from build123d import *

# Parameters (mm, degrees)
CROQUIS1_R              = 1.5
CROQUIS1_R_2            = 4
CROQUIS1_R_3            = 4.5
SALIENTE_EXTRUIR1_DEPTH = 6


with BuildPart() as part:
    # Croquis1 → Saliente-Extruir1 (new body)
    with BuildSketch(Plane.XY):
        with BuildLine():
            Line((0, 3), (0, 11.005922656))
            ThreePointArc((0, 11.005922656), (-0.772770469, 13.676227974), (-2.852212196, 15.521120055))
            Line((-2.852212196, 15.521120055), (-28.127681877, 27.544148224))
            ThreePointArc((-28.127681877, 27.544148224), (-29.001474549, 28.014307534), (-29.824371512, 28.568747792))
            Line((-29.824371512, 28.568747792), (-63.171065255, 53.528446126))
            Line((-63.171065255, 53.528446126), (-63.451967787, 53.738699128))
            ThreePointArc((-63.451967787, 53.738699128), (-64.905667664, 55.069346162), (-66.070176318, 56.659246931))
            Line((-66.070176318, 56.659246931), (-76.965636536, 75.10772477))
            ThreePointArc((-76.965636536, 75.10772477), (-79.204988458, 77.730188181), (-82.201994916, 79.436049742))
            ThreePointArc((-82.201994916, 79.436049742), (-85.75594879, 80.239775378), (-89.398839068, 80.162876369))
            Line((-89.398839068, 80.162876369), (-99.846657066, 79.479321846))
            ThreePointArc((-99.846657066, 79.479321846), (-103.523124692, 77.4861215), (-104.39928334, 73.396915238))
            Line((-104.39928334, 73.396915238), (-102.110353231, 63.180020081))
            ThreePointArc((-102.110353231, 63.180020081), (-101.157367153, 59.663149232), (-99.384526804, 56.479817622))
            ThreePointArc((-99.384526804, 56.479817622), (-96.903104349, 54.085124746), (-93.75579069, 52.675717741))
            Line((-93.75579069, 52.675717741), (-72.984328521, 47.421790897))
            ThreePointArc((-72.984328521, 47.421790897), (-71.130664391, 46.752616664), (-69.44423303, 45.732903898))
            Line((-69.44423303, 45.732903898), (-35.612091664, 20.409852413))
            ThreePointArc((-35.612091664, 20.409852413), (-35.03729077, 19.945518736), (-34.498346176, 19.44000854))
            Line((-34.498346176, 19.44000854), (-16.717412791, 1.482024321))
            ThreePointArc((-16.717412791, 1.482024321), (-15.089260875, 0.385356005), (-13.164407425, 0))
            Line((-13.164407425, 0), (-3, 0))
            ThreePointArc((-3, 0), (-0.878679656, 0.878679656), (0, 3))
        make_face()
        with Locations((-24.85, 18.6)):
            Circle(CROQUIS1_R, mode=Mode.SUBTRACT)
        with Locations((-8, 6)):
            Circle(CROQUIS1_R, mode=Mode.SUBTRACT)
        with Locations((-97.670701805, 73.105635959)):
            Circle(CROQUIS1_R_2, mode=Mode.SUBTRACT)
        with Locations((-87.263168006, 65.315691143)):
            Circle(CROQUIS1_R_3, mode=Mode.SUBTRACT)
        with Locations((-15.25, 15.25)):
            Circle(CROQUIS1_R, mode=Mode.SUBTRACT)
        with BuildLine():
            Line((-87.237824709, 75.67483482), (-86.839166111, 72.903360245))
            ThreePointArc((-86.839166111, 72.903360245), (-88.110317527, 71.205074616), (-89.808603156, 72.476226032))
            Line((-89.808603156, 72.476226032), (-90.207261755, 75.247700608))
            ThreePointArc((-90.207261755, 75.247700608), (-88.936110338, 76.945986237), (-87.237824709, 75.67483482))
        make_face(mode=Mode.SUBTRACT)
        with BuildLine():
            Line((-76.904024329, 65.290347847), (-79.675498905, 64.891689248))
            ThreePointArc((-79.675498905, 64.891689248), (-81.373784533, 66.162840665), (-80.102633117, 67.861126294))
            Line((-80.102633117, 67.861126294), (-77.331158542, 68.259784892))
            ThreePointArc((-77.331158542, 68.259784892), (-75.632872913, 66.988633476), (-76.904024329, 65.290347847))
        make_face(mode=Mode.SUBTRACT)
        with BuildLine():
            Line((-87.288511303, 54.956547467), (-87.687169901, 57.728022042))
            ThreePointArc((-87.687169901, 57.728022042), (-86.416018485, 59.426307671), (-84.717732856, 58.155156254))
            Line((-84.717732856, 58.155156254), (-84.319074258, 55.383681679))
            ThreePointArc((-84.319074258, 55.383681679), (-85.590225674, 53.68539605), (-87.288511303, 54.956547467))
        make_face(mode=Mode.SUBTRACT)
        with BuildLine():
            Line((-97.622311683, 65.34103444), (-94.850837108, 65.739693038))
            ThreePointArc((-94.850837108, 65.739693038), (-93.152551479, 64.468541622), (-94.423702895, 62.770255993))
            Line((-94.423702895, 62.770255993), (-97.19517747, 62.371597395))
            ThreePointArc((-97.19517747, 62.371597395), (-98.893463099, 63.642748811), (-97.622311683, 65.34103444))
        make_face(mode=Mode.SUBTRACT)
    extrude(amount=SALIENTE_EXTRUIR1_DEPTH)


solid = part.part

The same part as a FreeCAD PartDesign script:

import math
import FreeCAD as App
import Part
import Sketcher
from FreeCAD import Vector
Q = App.Units.Quantity

doc = App.newDocument("Part")
body = doc.addObject("PartDesign::Body", "Body")

# Sketch on XY plane
sketch1 = doc.addObject("Sketcher::SketchObject", "Sketch")
body.addObject(sketch1)
sketch1.AttachmentSupport = (doc.XY_Plane, [""])
sketch1.MapMode = "FlatFace"
sketch1.addGeometry(Part.LineSegment(Vector(0, 3, 0), Vector(0, 11.01, 0)), False)
sketch1.addGeometry(Part.ArcOfCircle(Part.Circle(Vector(-5, 11.01, 0), Vector(0, 0, 1), 5), math.radians(0), math.radians(65)), False)
sketch1.addGeometry(Part.LineSegment(Vector(-2.85, 15.52, 0), Vector(-28.13, 27.54, 0)), False)
sketch1.addGeometry(Part.ArcOfCircle(Part.Circle(Vector(-23.83, 36.57, 0), Vector(0, 0, 1), 10), math.radians(-126.81), math.radians(-115.44)), False)
sketch1.addGeometry(Part.LineSegment(Vector(-29.82, 28.57, 0), Vector(-63.17, 53.53, 0)), False)
sketch1.addGeometry(Part.LineSegment(Vector(-63.17, 53.53, 0), Vector(-63.45, 53.74, 0)), False)
sketch1.addGeometry(Part.ArcOfCircle(Part.Circle(Vector(-57.46, 61.74, 0), Vector(0, 0, 1), 10), math.radians(-149), math.radians(-127)), False)
sketch1.addGeometry(Part.LineSegment(Vector(-66.07, 56.66, 0), Vector(-76.97, 75.11, 0)), False)
sketch1.addGeometry(Part.ArcOfCircle(Part.Circle(Vector(-85.58, 70.02, 0), Vector(0, 0, 1), 10), math.radians(31), math.radians(70)), False)
sketch1.addGeometry(Part.ArcOfCircle(Part.Circle(Vector(-87.26, 65.32, 0), Vector(0, 0, 1), 15), math.radians(70), math.radians(98)), False)
sketch1.addGeometry(Part.LineSegment(Vector(-89.4, 80.16, 0), Vector(-99.85, 79.48, 0)), False)
sketch1.addGeometry(Part.ArcOfCircle(Part.Circle(Vector(-99.52, 74.49, 0), Vector(0, 0, 1), 5), math.radians(94), math.radians(193)), False)
sketch1.addGeometry(Part.LineSegment(Vector(-104.4, 73.4, 0), Vector(-102.11, 63.18, 0)), False)
sketch1.addGeometry(Part.ArcOfCircle(Part.Circle(Vector(-87.26, 65.32, 0), Vector(0, 0, 1), 15), math.radians(-172), math.radians(-144)), False)
sketch1.addGeometry(Part.ArcOfCircle(Part.Circle(Vector(-91.3, 62.37, 0), Vector(0, 0, 1), 10), math.radians(-144), math.radians(-104)), False)
sketch1.addGeometry(Part.LineSegment(Vector(-93.76, 52.68, 0), Vector(-72.98, 47.42, 0)), False)
sketch1.addGeometry(Part.ArcOfCircle(Part.Circle(Vector(-75.44, 37.73, 0), Vector(0, 0, 1), 10), math.radians(53), math.radians(76)), False)
sketch1.addGeometry(Part.LineSegment(Vector(-69.44, 45.73, 0), Vector(-35.61, 20.41, 0)), False)
sketch1.addGeometry(Part.ArcOfCircle(Part.Circle(Vector(-41.6, 12.4, 0), Vector(0, 0, 1), 10), math.radians(44.72), math.radians(53.19)), False)
sketch1.addGeometry(Part.LineSegment(Vector(-34.5, 19.44, 0), Vector(-16.72, 1.48, 0)), False)
sketch1.addGeometry(Part.ArcOfCircle(Part.Circle(Vector(-13.16, 5, 0), Vector(0, 0, 1), 5), math.radians(-135), math.radians(-90)), False)
sketch1.addGeometry(Part.LineSegment(Vector(-13.16, 0, 0), Vector(-3, 0, 0)), False)
sketch1.addGeometry(Part.ArcOfCircle(Part.Circle(Vector(-3, 3, 0), Vector(0, 0, 1), 3), math.radians(-90), math.radians(0)), False)
sketch1.addGeometry(Part.Circle(Vector(-8, 6, 0), Vector(0, 0, 1), 1.5), False)
sketch1.addGeometry(Part.Circle(Vector(-24.85, 18.6, 0), Vector(0, 0, 1), 1.5), False)
sketch1.addGeometry(Part.Circle(Vector(-15.25, 15.25, 0), Vector(0, 0, 1), 1.5), False)
sketch1.addGeometry(Part.ArcOfCircle(Part.Circle(Vector(-85.8, 55.17, 0), Vector(0, 0, 1), 1.5), math.radians(-172), math.radians(8)), False)
sketch1.addGeometry(Part.LineSegment(Vector(-87.29, 54.96, 0), Vector(-87.69, 57.73, 0)), False)
sketch1.addGeometry(Part.ArcOfCircle(Part.Circle(Vector(-86.2, 57.94, 0), Vector(0, 0, 1), 1.5), math.radians(8), math.radians(188)), False)
sketch1.addGeometry(Part.LineSegment(Vector(-84.72, 58.16, 0), Vector(-84.32, 55.38, 0)), False)
sketch1.addGeometry(Part.ArcOfCircle(Part.Circle(Vector(-97.41, 63.86, 0), Vector(0, 0, 1), 1.5), math.radians(98), math.radians(278)), False)
sketch1.addGeometry(Part.LineSegment(Vector(-97.62, 65.34, 0), Vector(-94.85, 65.74, 0)), False)
sketch1.addGeometry(Part.ArcOfCircle(Part.Circle(Vector(-94.64, 64.25, 0), Vector(0, 0, 1), 1.5), math.radians(-82), math.radians(98)), False)
sketch1.addGeometry(Part.LineSegment(Vector(-94.42, 62.77, 0), Vector(-97.2, 62.37, 0)), False)
sketch1.addGeometry(Part.Circle(Vector(-87.26, 65.32, 0), Vector(0, 0, 1), 4.5), False)
sketch1.addGeometry(Part.ArcOfCircle(Part.Circle(Vector(-77.12, 66.78, 0), Vector(0, 0, 1), 1.5), math.radians(-82), math.radians(98)), False)
sketch1.addGeometry(Part.LineSegment(Vector(-76.9, 65.29, 0), Vector(-79.68, 64.89, 0)), False)
sketch1.addGeometry(Part.ArcOfCircle(Part.Circle(Vector(-79.89, 66.38, 0), Vector(0, 0, 1), 1.5), math.radians(98), math.radians(278)), False)
sketch1.addGeometry(Part.LineSegment(Vector(-80.1, 67.86, 0), Vector(-77.33, 68.26, 0)), False)
sketch1.addGeometry(Part.Circle(Vector(-97.67, 73.11, 0), Vector(0, 0, 1), 4), False)
sketch1.addGeometry(Part.ArcOfCircle(Part.Circle(Vector(-88.72, 75.46, 0), Vector(0, 0, 1), 1.5), math.radians(8), math.radians(188)), False)
sketch1.addGeometry(Part.LineSegment(Vector(-87.24, 75.67, 0), Vector(-86.84, 72.9, 0)), False)
sketch1.addGeometry(Part.ArcOfCircle(Part.Circle(Vector(-88.32, 72.69, 0), Vector(0, 0, 1), 1.5), math.radians(-172), math.radians(8)), False)
sketch1.addGeometry(Part.LineSegment(Vector(-89.81, 72.48, 0), Vector(-90.21, 75.25, 0)), False)
sketch1.addConstraint(Sketcher.Constraint("Tangent", 0, 2, 1, 1))
sketch1.addConstraint(Sketcher.Constraint("Tangent", 1, 2, 2, 1))
sketch1.addConstraint(Sketcher.Constraint("Tangent", 2, 2, 3, 2))
sketch1.addConstraint(Sketcher.Constraint("Tangent", 3, 1, 4, 1))
sketch1.addConstraint(Sketcher.Constraint("Coincident", 4, 2, 5, 1))
sketch1.addConstraint(Sketcher.Constraint("Tangent", 5, 2, 6, 2))
sketch1.addConstraint(Sketcher.Constraint("Tangent", 6, 1, 7, 1))
sketch1.addConstraint(Sketcher.Constraint("Tangent", 7, 2, 8, 1))
sketch1.addConstraint(Sketcher.Constraint("Tangent", 8, 2, 9, 1))
sketch1.addConstraint(Sketcher.Constraint("Coincident", 9, 2, 10, 1))
sketch1.addConstraint(Sketcher.Constraint("Tangent", 10, 2, 11, 1))
sketch1.addConstraint(Sketcher.Constraint("Tangent", 11, 2, 12, 1))
sketch1.addConstraint(Sketcher.Constraint("Coincident", 12, 2, 13, 1))
sketch1.addConstraint(Sketcher.Constraint("Tangent", 13, 2, 14, 1))
sketch1.addConstraint(Sketcher.Constraint("Tangent", 14, 2, 15, 1))
sketch1.addConstraint(Sketcher.Constraint("Tangent", 15, 2, 16, 2))
sketch1.addConstraint(Sketcher.Constraint("Tangent", 16, 1, 17, 1))
sketch1.addConstraint(Sketcher.Constraint("Tangent", 17, 2, 18, 2))
sketch1.addConstraint(Sketcher.Constraint("Tangent", 18, 1, 19, 1))
sketch1.addConstraint(Sketcher.Constraint("Tangent", 19, 2, 20, 1))
sketch1.addConstraint(Sketcher.Constraint("Tangent", 20, 2, 21, 1))
sketch1.addConstraint(Sketcher.Constraint("Tangent", 21, 2, 22, 1))
sketch1.addConstraint(Sketcher.Constraint("Tangent", 22, 2, 0, 1))
sketch1.addConstraint(Sketcher.Constraint("Tangent", 26, 1, 27, 1))
sketch1.addConstraint(Sketcher.Constraint("Tangent", 27, 2, 28, 2))
sketch1.addConstraint(Sketcher.Constraint("Tangent", 28, 1, 29, 1))
sketch1.addConstraint(Sketcher.Constraint("Tangent", 29, 2, 26, 2))
sketch1.addConstraint(Sketcher.Constraint("Tangent", 30, 1, 31, 1))
sketch1.addConstraint(Sketcher.Constraint("Tangent", 31, 2, 32, 2))
sketch1.addConstraint(Sketcher.Constraint("Tangent", 32, 1, 33, 1))
sketch1.addConstraint(Sketcher.Constraint("Tangent", 33, 2, 30, 2))
sketch1.addConstraint(Sketcher.Constraint("Tangent", 35, 1, 36, 1))
sketch1.addConstraint(Sketcher.Constraint("Tangent", 36, 2, 37, 2))
sketch1.addConstraint(Sketcher.Constraint("Tangent", 37, 1, 38, 1))
sketch1.addConstraint(Sketcher.Constraint("Tangent", 38, 2, 35, 2))
sketch1.addConstraint(Sketcher.Constraint("Tangent", 40, 1, 41, 1))
sketch1.addConstraint(Sketcher.Constraint("Tangent", 41, 2, 42, 2))
sketch1.addConstraint(Sketcher.Constraint("Tangent", 42, 1, 43, 1))
sketch1.addConstraint(Sketcher.Constraint("Tangent", 43, 2, 40, 2))
sketch1.addConstraint(Sketcher.Constraint("Vertical", 0))
sketch1.addConstraint(Sketcher.Constraint("Horizontal", 21))
sketch1.addConstraint(Sketcher.Constraint("Coincident", 13, 3, 9, 3))
sketch1.addConstraint(Sketcher.Constraint("Coincident", 34, 3, 9, 3))
sketch1.addConstraint(Sketcher.Constraint("Equal", 3, 6))
sketch1.addConstraint(Sketcher.Constraint("Equal", 6, 8))
sketch1.addConstraint(Sketcher.Constraint("Equal", 1, 11))
sketch1.addConstraint(Sketcher.Constraint("Equal", 9, 13))
sketch1.addConstraint(Sketcher.Constraint("Equal", 8, 14))
sketch1.addConstraint(Sketcher.Constraint("Equal", 14, 16))
sketch1.addConstraint(Sketcher.Constraint("Equal", 16, 18))
sketch1.addConstraint(Sketcher.Constraint("Equal", 11, 20))
sketch1.addConstraint(Sketcher.Constraint("Equal", 23, 24))
sketch1.addConstraint(Sketcher.Constraint("Equal", 24, 25))
sketch1.addConstraint(Sketcher.Constraint("Equal", 25, 26))
sketch1.addConstraint(Sketcher.Constraint("Equal", 26, 28))
sketch1.addConstraint(Sketcher.Constraint("Equal", 28, 30))
sketch1.addConstraint(Sketcher.Constraint("Equal", 30, 32))
sketch1.addConstraint(Sketcher.Constraint("Equal", 32, 35))
sketch1.addConstraint(Sketcher.Constraint("Equal", 35, 37))
sketch1.addConstraint(Sketcher.Constraint("Equal", 37, 40))
sketch1.addConstraint(Sketcher.Constraint("Equal", 40, 42))
sketch1.addConstraint(Sketcher.Constraint("PointOnObject", 0, 2, -2))
sketch1.addConstraint(Sketcher.Constraint("PointOnObject", 20, 2, -1))
sketch1.addConstraint(Sketcher.Constraint("Parallel", 4, 5))
sketch1.addConstraint(Sketcher.Constraint("Parallel", 5, 17))
sketch1.addConstraint(Sketcher.Constraint("Perpendicular", 29, 31))
sketch1.addConstraint(Sketcher.Constraint("Parallel", 33, 36))
sketch1.addConstraint(Sketcher.Constraint("Perpendicular", 38, 41))
sketch1.addConstraint(Sketcher.Constraint("Equal", 10, 12))
sketch1.addConstraint(Sketcher.Constraint("Equal", 7, 15))
sketch1.addConstraint(Sketcher.Constraint("Equal", 29, 31))
sketch1.addConstraint(Sketcher.Constraint("Equal", 33, 36))
sketch1.addConstraint(Sketcher.Constraint("Equal", 38, 41))
sketch1.addConstraint(Sketcher.Constraint("Diameter", 23, Q("3 mm")))
sketch1.addConstraint(Sketcher.Constraint("Diameter", 34, Q("9 mm")))
sketch1.addConstraint(Sketcher.Constraint("Diameter", 39, Q("8 mm")))
sketch1.addConstraint(Sketcher.Constraint("Radius", 1, Q("5 mm")))
sketch1.addConstraint(Sketcher.Constraint("Radius", 3, Q("10 mm")))
sketch1.addConstraint(Sketcher.Constraint("Radius", 9, Q("15 mm")))
sketch1.addConstraint(Sketcher.Constraint("Radius", 22, Q("3 mm")))
sketch1.addConstraint(Sketcher.Constraint("DistanceX", 23, 3, -1, 1, Q("8 mm")))
sketch1.addConstraint(Sketcher.Constraint("DistanceY", -1, 1, 23, 3, Q("6 mm")))
sketch1.addConstraint(Sketcher.Constraint("Distance", 27, Q("2.8 mm")))
sketch1.addConstraint(Sketcher.Constraint("DistanceY", -1, 1, 24, 3, Q("18.6 mm")))
sketch1.addConstraint(Sketcher.Constraint("DistanceX", 24, 3, -1, 1, Q("24.85 mm")))
sketch1.addConstraint(Sketcher.Constraint("DistanceX", 25, 3, -1, 1, Q("15.25 mm")))
sketch1.addConstraint(Sketcher.Constraint("DistanceY", -1, 1, 25, 3, Q("15.25 mm")))
sketch1.addConstraint(Sketcher.Constraint("DistanceY", -1, 1, 14, 3, Q("62.3704 mm")))
sketch1.addConstraint(Sketcher.Constraint("DistanceX", 16, 3, -1, 1, Q("75.436498 mm")))
sketch1.addConstraint(Sketcher.Constraint("DistanceX", 39, 3, -1, 1, Q("97.670702 mm")))
sketch1.addConstraint(Sketcher.Constraint("DistanceY", -1, 1, 5, 2, Q("53.738699 mm")))
sketch1.addConstraint(Sketcher.Constraint("DistanceX", 36, 2, -1, 1, Q("79.675499 mm")))
sketch1.addConstraint(Sketcher.Constraint("DistanceY", -1, 1, 43, 2, Q("75.247701 mm")))
sketch1.addConstraint(Sketcher.Constraint("Distance", 2, Q("27.98933 mm")))
sketch1.addConstraint(Sketcher.Constraint("Distance", 19, Q("25.271541 mm")))
sketch1.addConstraint(Sketcher.Constraint("DistanceX", 21, 1, 21, 2, Q("10.164407 mm")))
sketch1.addConstraint(Sketcher.Constraint("DistanceY", 0, 1, 0, 2, Q("8.005923 mm")))
sketch1.addConstraint(Sketcher.Constraint("DistanceX", 8, 3, -1, 1, Q("85.57611 mm")))
sketch1.addConstraint(Sketcher.Constraint("DistanceX", 9, 3, -1, 1, Q("87.263168 mm")))
sketch1.addConstraint(Sketcher.Constraint("DistanceY", -1, 1, 9, 3, Q("65.315691 mm")))
sketch1.addConstraint(Sketcher.Constraint("DistanceY", -1, 1, 11, 3, Q("74.489989 mm")))
sketch1.addConstraint(Sketcher.Constraint("DistanceY", -1, 1, 16, 3, Q("37.727109 mm")))
sketch1.addConstraint(Sketcher.Constraint("DistanceX", 28, 3, -1, 1, Q("86.202451 mm")))
sketch1.addConstraint(Sketcher.Constraint("DistanceY", -1, 1, 28, 3, Q("57.941589 mm")))
sketch1.addConstraint(Sketcher.Constraint("DistanceX", 32, 3, -1, 1, Q("94.63727 mm")))
sketch1.addConstraint(Sketcher.Constraint("DistanceX", 35, 3, -1, 1, Q("77.117591 mm")))
sketch1.addConstraint(Sketcher.Constraint("DistanceY", -1, 1, 1, 2, Q("15.52112 mm")))
sketch1.addConstraint(Sketcher.Constraint("DistanceX", 9, 2, -1, 1, Q("89.398839 mm")))
sketch1.addConstraint(Sketcher.Constraint("DistanceY", -1, 1, 12, 2, Q("63.18002 mm")))
sketch1.addConstraint(Sketcher.Constraint("DistanceY", -1, 1, 36, 2, Q("64.891689 mm")))
sketch1.addConstraint(Sketcher.Constraint("DistanceX", 43, 2, -1, 1, Q("90.207262 mm")))
sketch1.addConstraint(Sketcher.Constraint("Distance", 4, Q("41.653193 mm")))
sketch1.addConstraint(Sketcher.Constraint("DistanceY", -1, 1, 30, 3, Q("63.856316 mm")))
sketch1.addConstraint(Sketcher.Constraint("DistanceY", -1, 1, 39, 3, Q("73.105636 mm")))
pad1 = doc.addObject("PartDesign::Pad", "Pad")
body.addObject(pad1)
pad1.Profile = sketch1
pad1.Length = 6

doc.recompute()
